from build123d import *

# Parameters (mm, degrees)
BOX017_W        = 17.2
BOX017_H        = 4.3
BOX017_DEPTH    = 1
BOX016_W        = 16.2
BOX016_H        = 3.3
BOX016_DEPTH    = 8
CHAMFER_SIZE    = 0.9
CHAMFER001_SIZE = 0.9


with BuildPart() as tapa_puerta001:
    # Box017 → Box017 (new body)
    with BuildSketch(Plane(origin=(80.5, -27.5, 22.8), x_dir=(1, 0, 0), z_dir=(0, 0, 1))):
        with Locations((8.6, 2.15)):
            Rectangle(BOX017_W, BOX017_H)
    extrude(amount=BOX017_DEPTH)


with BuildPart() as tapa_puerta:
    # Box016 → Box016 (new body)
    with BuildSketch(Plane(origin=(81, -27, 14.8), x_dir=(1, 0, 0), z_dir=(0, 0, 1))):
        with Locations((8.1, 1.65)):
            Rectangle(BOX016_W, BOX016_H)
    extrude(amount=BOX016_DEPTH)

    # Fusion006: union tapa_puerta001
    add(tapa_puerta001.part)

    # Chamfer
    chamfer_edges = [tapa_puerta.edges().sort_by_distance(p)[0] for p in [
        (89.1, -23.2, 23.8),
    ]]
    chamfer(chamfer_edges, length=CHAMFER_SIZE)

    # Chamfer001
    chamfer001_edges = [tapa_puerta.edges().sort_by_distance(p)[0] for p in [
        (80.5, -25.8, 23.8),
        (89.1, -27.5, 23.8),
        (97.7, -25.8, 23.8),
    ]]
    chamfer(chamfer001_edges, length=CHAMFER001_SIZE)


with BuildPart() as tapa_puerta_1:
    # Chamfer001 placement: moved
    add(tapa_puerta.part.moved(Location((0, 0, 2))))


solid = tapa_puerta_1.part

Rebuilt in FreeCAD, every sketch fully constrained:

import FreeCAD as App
import Part
import Sketcher

V = App.Vector
Q = App.Units.Quantity


def edges_at(feature, points):
    """Names of the edges that pass closest to the given points."""
    edges = feature.Shape.Edges
    near = lambda p: min(range(len(edges)), key=lambda i: edges[i].distToShape(Part.Vertex(*p))[0])
    return sorted({f"Edge{near(p) + 1}" for p in points})


def add_polygon(sketch, points):
    """Adds a closed chain of lines whose ends are joined by coincident constraints."""
    first, n = sketch.GeometryCount, len(points)
    for a, b in zip(points, points[1:] + points[:1]):
        sketch.addGeometry(Part.LineSegment(App.Vector(*a, 0), App.Vector(*b, 0)), False)
    for i in range(n):
        sketch.addConstraint(Sketcher.Constraint("Coincident", first + i, 2, first + (i + 1) % n, 1))

doc = App.newDocument("Part")
params = doc.addObject("Spreadsheet::Sheet", "Params")
for row, (alias, value) in enumerate([
    ("sketch1_width", "17.2 mm"),
    ("sketch1_height", "4.3 mm"),
    ("pad1_length", "1 mm"),
    ("sketch2_width", "16.2 mm"),
    ("sketch2_height", "3.3 mm"),
    ("pad2_length", "8 mm"),
    ("chamfer_size", "0.9 mm"),
    ("chamfer2_size", "0.9 mm"),
], start=1):
    params.set(f"A{row}", alias)
    params.set(f"B{row}", "=" + value)
    params.setAlias(f"B{row}", alias)

body = doc.addObject("PartDesign::Body", "Body")

# Sketch on XY plane
sketch1 = body.newObject("Sketcher::SketchObject", "Sketch")
sketch1.AttachmentSupport = (doc.getObject("XY_Plane"), [""])
sketch1.MapMode = "FlatFace"
sketch1.AttachmentOffset = App.Placement(V(0, 0, 22.8), App.Rotation())
add_polygon(sketch1, [(80.5, -23.2), (80.5, -27.5), (97.7, -27.5), (97.7, -23.2)])  # lines 0-3
sketch1.addConstraint(Sketcher.Constraint("Vertical", 0))
sketch1.addConstraint(Sketcher.Constraint("Horizontal", 1))
sketch1.addConstraint(Sketcher.Constraint("Vertical", 2))
sketch1.addConstraint(Sketcher.Constraint("Horizontal", 3))
sketch1.addConstraint(Sketcher.Constraint("DistanceX", 1, 1, 1, 2, Q("17.2 mm")))
sketch1.addConstraint(Sketcher.Constraint("DistanceY", 0, 2, 0, 1, Q("4.3 mm")))
sketch1.addConstraint(Sketcher.Constraint("DistanceX", -1, 1, 0, 2, Q("80.5 mm")))
sketch1.addConstraint(Sketcher.Constraint("DistanceY", 0, 2, -1, 1, Q("27.5 mm")))
sketch1.setExpression("Constraints[8]", "Params.sketch1_width")
sketch1.setExpression("Constraints[9]", "Params.sketch1_height")
pad1 = body.newObject("PartDesign::Pad", "Pad")
pad1.Profile = sketch1
pad1.setExpression("Length", "Params.pad1_length")
body2 = doc.addObject("PartDesign::Body", "Body001")

# Sketch on XY plane
sketch2 = body2.newObject("Sketcher::SketchObject", "Sketch001")
sketch2.AttachmentSupport = (doc.getObject("XY_Plane001"), [""])
sketch2.MapMode = "FlatFace"
sketch2.AttachmentOffset = App.Placement(V(0, 0, 14.8), App.Rotation())
add_polygon(sketch2, [(81, -23.7), (81, -27), (97.2, -27), (97.2, -23.7)])  # lines 0-3
sketch2.addConstraint(Sketcher.Constraint("Vertical", 0))
sketch2.addConstraint(Sketcher.Constraint("Horizontal", 1))
sketch2.addConstraint(Sketcher.Constraint("Vertical", 2))
sketch2.addConstraint(Sketcher.Constraint("Horizontal", 3))
sketch2.addConstraint(Sketcher.Constraint("DistanceX", 1, 1, 1, 2, Q("16.2 mm")))
sketch2.addConstraint(Sketcher.Constraint("DistanceY", 0, 2, 0, 1, Q("3.3 mm")))
sketch2.addConstraint(Sketcher.Constraint("DistanceX", -1, 1, 0, 2, Q("81 mm")))
sketch2.addConstraint(Sketcher.Constraint("DistanceY", 0, 2, -1, 1, Q("27 mm")))
sketch2.setExpression("Constraints[8]", "Params.sketch2_width")
sketch2.setExpression("Constraints[9]", "Params.sketch2_height")
pad2 = body2.newObject("PartDesign::Pad", "Pad001")
pad2.Profile = sketch2
pad2.setExpression("Length", "Params.pad2_length")
doc.recompute()

boolean = body2.newObject("PartDesign::Boolean", "Boolean")
boolean.Type = "Fuse"
boolean.addObjects([body])
doc.recompute()

chamfer = body2.newObject("PartDesign::Chamfer", "Chamfer")
chamfer.Base = (boolean, edges_at(boolean, [(89.1, -23.2, 23.8)]))
chamfer.setExpression("Size", "Params.chamfer_size")
doc.recompute()

chamfer2 = body2.newObject("PartDesign::Chamfer", "Chamfer001")
chamfer2.Base = (chamfer, edges_at(chamfer, [(80.5, -25.8, 23.8), (89.1, -27.5, 23.8), (97.7, -25.8, 23.8)]))
chamfer2.setExpression("Size", "Params.chamfer2_size")
body3 = doc.addObject("PartDesign::Body", "Body002")
doc.recompute()

body2.Placement = App.Placement(V(0, 0, 2), App.Rotation(V(0, 0, 1), 0))
boolean2 = body3.newObject("PartDesign::Boolean", "Boolean001")
boolean2.Type = "Fuse"
boolean2.addObjects([body2])

doc.recompute()
